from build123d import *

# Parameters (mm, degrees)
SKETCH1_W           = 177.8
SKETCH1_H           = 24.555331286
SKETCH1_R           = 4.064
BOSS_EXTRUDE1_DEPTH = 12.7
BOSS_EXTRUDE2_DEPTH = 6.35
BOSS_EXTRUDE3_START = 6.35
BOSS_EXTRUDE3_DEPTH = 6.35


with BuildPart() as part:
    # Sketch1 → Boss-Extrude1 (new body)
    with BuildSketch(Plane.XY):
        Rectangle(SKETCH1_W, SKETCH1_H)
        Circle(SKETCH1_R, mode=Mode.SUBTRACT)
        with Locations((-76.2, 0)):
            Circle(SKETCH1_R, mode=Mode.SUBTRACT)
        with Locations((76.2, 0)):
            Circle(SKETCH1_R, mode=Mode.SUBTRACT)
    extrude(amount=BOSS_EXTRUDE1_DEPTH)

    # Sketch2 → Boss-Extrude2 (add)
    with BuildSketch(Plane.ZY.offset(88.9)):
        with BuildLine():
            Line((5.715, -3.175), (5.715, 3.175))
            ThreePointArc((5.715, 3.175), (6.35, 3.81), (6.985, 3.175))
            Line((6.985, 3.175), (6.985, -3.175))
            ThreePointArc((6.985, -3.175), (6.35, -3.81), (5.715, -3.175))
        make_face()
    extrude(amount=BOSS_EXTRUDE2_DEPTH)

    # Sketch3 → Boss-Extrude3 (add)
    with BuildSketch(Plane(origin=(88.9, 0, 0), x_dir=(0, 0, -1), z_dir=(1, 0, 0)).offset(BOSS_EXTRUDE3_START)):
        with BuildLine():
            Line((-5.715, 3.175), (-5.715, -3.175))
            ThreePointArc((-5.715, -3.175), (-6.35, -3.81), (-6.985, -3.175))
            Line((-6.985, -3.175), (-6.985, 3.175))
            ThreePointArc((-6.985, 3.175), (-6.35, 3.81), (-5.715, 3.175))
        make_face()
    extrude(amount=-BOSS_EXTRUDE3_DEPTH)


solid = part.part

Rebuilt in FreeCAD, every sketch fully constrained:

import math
import FreeCAD as App
import Part
import Sketcher
Q = App.Units.Quantity

doc = App.newDocument("Part")
params = doc.addObject("Spreadsheet::Sheet", "Params")
for row, (alias, value) in enumerate([
    ("sketch1_diameter", "0.32 in"),
    ("sketch1_width", "7 in"),
    ("pad1_length", "0.5 in"),
    ("sketch2_radius", "0.025 in"),
    ("sketch2_width", "0.25 in"),
    ("pad2_length", "0.25 in"),
    ("sketch3_radius", "0.025 in"),
    ("sketch3_width", "0.25 in"),
    ("pad3_length", "0.25 in"),
], start=1):
    params.set(f"A{row}", alias)
    params.set(f"B{row}", "=" + value)
    params.setAlias(f"B{row}", alias)

body = doc.addObject("PartDesign::Body", "Body")

sketch1 = body.newObject("Sketcher::SketchObject", "Sketch")
sketch1.AttachmentSupport = (doc.getObject("XY_Plane"), [""])
sketch1.MapMode = "FlatFace"
sketch1.addGeometry([
    Part.LineSegment(App.Vector(-88.9, 12.3, 0), App.Vector(-88.9, -12.3, 0)),
    Part.LineSegment(App.Vector(-88.9, -12.3, 0), App.Vector(88.9, -12.3, 0)),
    Part.LineSegment(App.Vector(88.9, -12.3, 0), App.Vector(88.9, 12.3, 0)),
    Part.LineSegment(App.Vector(88.9, 12.3, 0), App.Vector(-88.9, 12.3, 0)),
    Part.Circle(App.Vector(-76.2, 0, 0), App.Vector(0, 0, 1), 4.1),
    Part.Circle(App.Vector(0, 0, 0), App.Vector(0, 0, 1), 4.1),
    Part.Circle(App.Vector(76.2, 0, 0), App.Vector(0, 0, 1), 4.1),
], False)
sketch1.addConstraint([
    Sketcher.Constraint("Coincident", 0, 2, 1, 1),
    Sketcher.Constraint("Coincident", 1, 2, 2, 1),
    Sketcher.Constraint("Coincident", 2, 2, 3, 1),
    Sketcher.Constraint("Coincident", 3, 2, 0, 1),
    Sketcher.Constraint("Vertical", 0),
    Sketcher.Constraint("Horizontal", 1),
    Sketcher.Constraint("Vertical", 2),
    Sketcher.Constraint("Horizontal", 3),
    Sketcher.Constraint("Coincident", 5, 3, -1, 1),
    Sketcher.Constraint("Equal", 4, 5),
    Sketcher.Constraint("Equal", 5, 6),
    Sketcher.Constraint("Symmetric", 4, 3, 6, 3, -1, 1),
    Sketcher.Constraint("Symmetric", 0, 2, 2, 2, -1, 1),
    Sketcher.Constraint("PointOnObject", 4, 3, -1),
    Sketcher.Constraint("Diameter", 4, Q("0.32 in")),
    Sketcher.Constraint("DistanceX", 1, 1, 1, 2, Q("7 in")),
    Sketcher.Constraint("DistanceX", 4, 3, -1, 1, Q("3 in")),
    Sketcher.Constraint("DistanceY", 0, 2, 0, 1, 24.555331),
])
sketch1.setExpression("Constraints[14]", "Params.sketch1_diameter")
sketch1.setExpression("Constraints[15]", "Params.sketch1_width")
pad1 = body.newObject("PartDesign::Pad", "Pad")
pad1.Profile = sketch1
pad1.setExpression("Length", "Params.pad1_length")

sketch2 = body.newObject("Sketcher::SketchObject", "Sketch001")
sketch2.AttachmentSupport = (doc.getObject("YZ_Plane"), [""])
sketch2.MapMode = "FlatFace"
sketch2.AttachmentOffset = App.Placement(App.Vector(0, 0, -3.5 * 25.4), App.Rotation())
sketch2.addGeometry([
    Part.LineSegment(App.Vector(3.2, 5.7, 0), App.Vector(-3.2, 5.7, 0)),
    Part.ArcOfCircle(Part.Circle(App.Vector(-3.2, 6.3, 0), App.Vector(0, 0, 1), 0.6), math.radians(90), math.radians(270)),
    Part.LineSegment(App.Vector(-3.2, 7, 0), App.Vector(3.2, 7, 0)),
    Part.ArcOfCircle(Part.Circle(App.Vector(3.2, 6.3, 0), App.Vector(0, 0, 1), 0.6), math.radians(-90), math.radians(90)),
], False)
sketch2.addConstraint([
    Sketcher.Constraint("Tangent", 0, 2, 1, 2),
    Sketcher.Constraint("Tangent", 1, 1, 2, 1),
    Sketcher.Constraint("Tangent", 2, 2, 3, 2),
    Sketcher.Constraint("Tangent", 3, 1, 0, 1),
    Sketcher.Constraint("Horizontal", 0),
    Sketcher.Constraint("Horizontal", 2),
    Sketcher.Constraint("Radius", 1, Q("0.025 in")),
    Sketcher.Constraint("DistanceX", 0, 2, 0, 1, Q("0.25 in")),
    Sketcher.Constraint("DistanceY", -1, 1, 1, 3, Q("0.25 in")),
    Sketcher.Constraint("DistanceX", 1, 3, -1, 1, Q("0.125 in")),
])
sketch2.setExpression("Constraints[6]", "Params.sketch2_radius")
sketch2.setExpression("Constraints[7]", "Params.sketch2_width")
pad2 = body.newObject("PartDesign::Pad", "Pad001")
pad2.Profile = sketch2
pad2.setExpression("Length", "Params.pad2_length")
pad2.Reversed = True

sketch3 = body.newObject("Sketcher::SketchObject", "Sketch002")
sketch3.AttachmentSupport = (doc.getObject("YZ_Plane"), [""])
sketch3.MapMode = "FlatFace"
sketch3.AttachmentOffset = App.Placement(App.Vector(0, 0, 3.75 * 25.4), App.Rotation())
sketch3.addGeometry([
    Part.LineSegment(App.Vector(-3.2, 5.7, 0), App.Vector(3.2, 5.7, 0)),
    Part.ArcOfCircle(Part.Circle(App.Vector(3.2, 6.3, 0), App.Vector(0, 0, 1), 0.6), math.radians(-90), math.radians(90)),
    Part.LineSegment(App.Vector(3.2, 7, 0), App.Vector(-3.2, 7, 0)),
    Part.ArcOfCircle(Part.Circle(App.Vector(-3.2, 6.3, 0), App.Vector(0, 0, 1), 0.6), math.radians(90), math.radians(270)),
], False)
sketch3.addConstraint([
    Sketcher.Constraint("Tangent", 0, 2, 1, 1),
    Sketcher.Constraint("Tangent", 1, 2, 2, 1),
    Sketcher.Constraint("Tangent", 2, 2, 3, 1),
    Sketcher.Constraint("Tangent", 3, 2, 0, 1),
    Sketcher.Constraint("Horizontal", 0),
    Sketcher.Constraint("Horizontal", 2),
    Sketcher.Constraint("Radius", 1, Q("0.025 in")),
    Sketcher.Constraint("DistanceX", 0, 1, 0, 2, Q("0.25 in")),
    Sketcher.Constraint("DistanceY", -1, 1, 1, 3, Q("0.25 in")),
    Sketcher.Constraint("DistanceX", -1, 1, 1, 3, Q("0.125 in")),
])
sketch3.setExpression("Constraints[6]", "Params.sketch3_radius")
sketch3.setExpression("Constraints[7]", "Params.sketch3_width")
pad3 = body.newObject("PartDesign::Pad", "Pad002")
pad3.Profile = sketch3
pad3.setExpression("Length", "Params.pad3_length")
pad3.Reversed = True

doc.recompute()
